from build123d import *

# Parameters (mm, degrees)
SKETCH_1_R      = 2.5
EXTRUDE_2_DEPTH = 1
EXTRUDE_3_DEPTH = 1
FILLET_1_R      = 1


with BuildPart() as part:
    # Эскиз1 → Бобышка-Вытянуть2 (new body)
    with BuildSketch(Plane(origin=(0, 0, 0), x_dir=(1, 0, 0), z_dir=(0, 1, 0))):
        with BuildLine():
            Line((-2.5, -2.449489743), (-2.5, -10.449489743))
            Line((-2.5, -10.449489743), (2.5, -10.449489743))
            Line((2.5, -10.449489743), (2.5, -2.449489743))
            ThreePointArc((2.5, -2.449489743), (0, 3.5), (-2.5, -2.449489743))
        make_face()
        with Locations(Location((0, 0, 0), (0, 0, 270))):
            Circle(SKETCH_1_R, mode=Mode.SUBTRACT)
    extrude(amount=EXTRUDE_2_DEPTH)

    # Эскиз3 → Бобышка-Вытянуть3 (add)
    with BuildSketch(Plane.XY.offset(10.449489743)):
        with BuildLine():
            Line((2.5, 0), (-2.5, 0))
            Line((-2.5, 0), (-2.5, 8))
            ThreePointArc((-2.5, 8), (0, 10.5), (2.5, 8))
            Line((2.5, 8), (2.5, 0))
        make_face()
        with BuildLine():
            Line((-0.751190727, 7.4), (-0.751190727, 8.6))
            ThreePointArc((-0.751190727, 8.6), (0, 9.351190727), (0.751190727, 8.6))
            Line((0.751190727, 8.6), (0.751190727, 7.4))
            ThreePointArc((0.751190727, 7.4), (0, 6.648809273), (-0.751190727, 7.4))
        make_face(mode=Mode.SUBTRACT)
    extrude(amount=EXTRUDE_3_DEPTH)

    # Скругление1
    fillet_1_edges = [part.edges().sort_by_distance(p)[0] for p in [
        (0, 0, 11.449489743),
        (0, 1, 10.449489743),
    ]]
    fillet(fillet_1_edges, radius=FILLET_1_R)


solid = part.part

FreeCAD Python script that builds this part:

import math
import FreeCAD as App
import Part
import Sketcher

V = App.Vector


def edges_at(feature, points):
    """Names of the edges that pass closest to the given points."""
    edges = feature.Shape.Edges
    near = lambda p: min(range(len(edges)), key=lambda i: edges[i].distToShape(Part.Vertex(*p))[0])
    return sorted({f"Edge{near(p) + 1}" for p in points})

doc = App.newDocument("Part")
body = doc.addObject("PartDesign::Body", "Body")

sketch1 = body.newObject("Sketcher::SketchObject", "Sketch")
sketch1.AttachmentSupport = (doc.getObject("XZ_Plane"), [""])
sketch1.MapMode = "FlatFace"
sketch1.addGeometry(Part.LineSegment(V(-2.5, 2.4, 0), V(-2.5, 10.4, 0)), False)
sketch1.addGeometry(Part.LineSegment(V(-2.5, 10.4, 0), V(2.5, 10.4, 0)), False)
sketch1.addGeometry(Part.LineSegment(V(2.5, 10.4, 0), V(2.5, 2.4, 0)), False)
sketch1.addGeometry(Part.ArcOfCircle(Part.Circle(V(0, 0, 0), V(0, 0, 1), 3.5), math.radians(136), math.radians(404)), False)
sketch1.addGeometry(Part.Circle(V(0, 0, 0), V(0, 0, 1), 2.5), False)
sketch1.addConstraint(Sketcher.Constraint("Coincident", 0, 2, 1, 1))
sketch1.addConstraint(Sketcher.Constraint("Coincident", 1, 2, 2, 1))
sketch1.addConstraint(Sketcher.Constraint("Coincident", 2, 2, 3, 2))
sketch1.addConstraint(Sketcher.Constraint("Coincident", 3, 1, 0, 1))
sketch1.addConstraint(Sketcher.Constraint("Vertical", 0))
sketch1.addConstraint(Sketcher.Constraint("Horizontal", 1))
sketch1.addConstraint(Sketcher.Constraint("Vertical", 2))
sketch1.addConstraint(Sketcher.Constraint("Coincident", 3, 3, -1, 1))
sketch1.addConstraint(Sketcher.Constraint("Coincident", 4, 3, -1, 1))
sketch1.addConstraint(Sketcher.Constraint("Horizontal", 2, 2, 3, 1))
sketch1.addConstraint(Sketcher.Constraint("Diameter", 4, 5.0))
sketch1.addConstraint(Sketcher.Constraint("Radius", 3, 3.5))
sketch1.addConstraint(Sketcher.Constraint("DistanceX", 1, 1, 1, 2, 5.0))
sketch1.addConstraint(Sketcher.Constraint("DistanceY", 0, 1, 0, 2, 8.0))
pad1 = body.newObject("PartDesign::Pad", "Pad")
pad1.Profile = sketch1
pad1.Length = 1
pad1.Reversed = True

sketch2 = body.newObject("Sketcher::SketchObject", "Sketch001")
sketch2.AttachmentSupport = (doc.getObject("XY_Plane"), [""])
sketch2.MapMode = "FlatFace"
sketch2.AttachmentOffset = App.Placement(V(0, 0, 10.44949), App.Rotation())
sketch2.addGeometry(Part.LineSegment(V(-2.5, 0, 0), V(2.5, 0, 0)), False)
sketch2.addGeometry(Part.LineSegment(V(2.5, 0, 0), V(2.5, 8, 0)), False)
sketch2.addGeometry(Part.ArcOfCircle(Part.Circle(V(0, 8, 0), V(0, 0, 1), 2.5), math.radians(0), math.radians(180)), False)
sketch2.addGeometry(Part.LineSegment(V(-2.5, 8, 0), V(-2.5, 0, 0)), False)
sketch2.addGeometry(Part.LineSegment(V(-0.8, 7.4, 0), V(-0.8, 8.6, 0)), False)
sketch2.addGeometry(Part.ArcOfCircle(Part.Circle(V(0, 8.6, 0), V(0, 0, 1), 0.8), math.radians(0), math.radians(180)), False)
sketch2.addGeometry(Part.LineSegment(V(0.8, 8.6, 0), V(0.8, 7.4, 0)), False)
sketch2.addGeometry(Part.ArcOfCircle(Part.Circle(V(0, 7.4, 0), V(0, 0, 1), 0.8), math.radians(180), math.radians(360)), False)
sketch2.addConstraint(Sketcher.Constraint("Coincident", 0, 2, 1, 1))
sketch2.addConstraint(Sketcher.Constraint("Tangent", 1, 2, 2, 1))
sketch2.addConstraint(Sketcher.Constraint("Tangent", 2, 2, 3, 1))
sketch2.addConstraint(Sketcher.Constraint("Coincident", 3, 2, 0, 1))
sketch2.addConstraint(Sketcher.Constraint("Tangent", 4, 2, 5, 2))
sketch2.addConstraint(Sketcher.Constraint("Tangent", 5, 1, 6, 1))
sketch2.addConstraint(Sketcher.Constraint("Tangent", 6, 2, 7, 2))
sketch2.addConstraint(Sketcher.Constraint("Tangent", 7, 1, 4, 1))
sketch2.addConstraint(Sketcher.Constraint("Horizontal", 0))
sketch2.addConstraint(Sketcher.Constraint("Vertical", 1))
sketch2.addConstraint(Sketcher.Constraint("Vertical", 3))
sketch2.addConstraint(Sketcher.Constraint("Vertical", 4))
sketch2.addConstraint(Sketcher.Constraint("Vertical", 6))
sketch2.addConstraint(Sketcher.Constraint("Symmetric", 0, 2, 3, 2, -1, 1))
sketch2.addConstraint(Sketcher.Constraint("PointOnObject", 5, 3, -2))
sketch2.addConstraint(Sketcher.Constraint("Radius", 2, 2.5))
sketch2.addConstraint(Sketcher.Constraint("DistanceY", 1, 1, 1, 2, 8.0))
sketch2.addConstraint(Sketcher.Constraint("DistanceY", 4, 1, 4, 2, 1.2))
sketch2.addConstraint(Sketcher.Constraint("DistanceY", -1, 1, 5, 3, 8.6))
sketch2.addConstraint(Sketcher.Constraint("Radius", 5, 0.751191))
pad2 = body.newObject("PartDesign::Pad", "Pad001")
pad2.Profile = sketch2
pad2.Length = 1
doc.recompute()

fillet = body.newObject("PartDesign::Fillet", "Fillet")
fillet.Base = (pad2, edges_at(pad2, [(0, 0, 11.449), (0, 1, 10.449)]))
fillet.Radius = 1

doc.recompute()
